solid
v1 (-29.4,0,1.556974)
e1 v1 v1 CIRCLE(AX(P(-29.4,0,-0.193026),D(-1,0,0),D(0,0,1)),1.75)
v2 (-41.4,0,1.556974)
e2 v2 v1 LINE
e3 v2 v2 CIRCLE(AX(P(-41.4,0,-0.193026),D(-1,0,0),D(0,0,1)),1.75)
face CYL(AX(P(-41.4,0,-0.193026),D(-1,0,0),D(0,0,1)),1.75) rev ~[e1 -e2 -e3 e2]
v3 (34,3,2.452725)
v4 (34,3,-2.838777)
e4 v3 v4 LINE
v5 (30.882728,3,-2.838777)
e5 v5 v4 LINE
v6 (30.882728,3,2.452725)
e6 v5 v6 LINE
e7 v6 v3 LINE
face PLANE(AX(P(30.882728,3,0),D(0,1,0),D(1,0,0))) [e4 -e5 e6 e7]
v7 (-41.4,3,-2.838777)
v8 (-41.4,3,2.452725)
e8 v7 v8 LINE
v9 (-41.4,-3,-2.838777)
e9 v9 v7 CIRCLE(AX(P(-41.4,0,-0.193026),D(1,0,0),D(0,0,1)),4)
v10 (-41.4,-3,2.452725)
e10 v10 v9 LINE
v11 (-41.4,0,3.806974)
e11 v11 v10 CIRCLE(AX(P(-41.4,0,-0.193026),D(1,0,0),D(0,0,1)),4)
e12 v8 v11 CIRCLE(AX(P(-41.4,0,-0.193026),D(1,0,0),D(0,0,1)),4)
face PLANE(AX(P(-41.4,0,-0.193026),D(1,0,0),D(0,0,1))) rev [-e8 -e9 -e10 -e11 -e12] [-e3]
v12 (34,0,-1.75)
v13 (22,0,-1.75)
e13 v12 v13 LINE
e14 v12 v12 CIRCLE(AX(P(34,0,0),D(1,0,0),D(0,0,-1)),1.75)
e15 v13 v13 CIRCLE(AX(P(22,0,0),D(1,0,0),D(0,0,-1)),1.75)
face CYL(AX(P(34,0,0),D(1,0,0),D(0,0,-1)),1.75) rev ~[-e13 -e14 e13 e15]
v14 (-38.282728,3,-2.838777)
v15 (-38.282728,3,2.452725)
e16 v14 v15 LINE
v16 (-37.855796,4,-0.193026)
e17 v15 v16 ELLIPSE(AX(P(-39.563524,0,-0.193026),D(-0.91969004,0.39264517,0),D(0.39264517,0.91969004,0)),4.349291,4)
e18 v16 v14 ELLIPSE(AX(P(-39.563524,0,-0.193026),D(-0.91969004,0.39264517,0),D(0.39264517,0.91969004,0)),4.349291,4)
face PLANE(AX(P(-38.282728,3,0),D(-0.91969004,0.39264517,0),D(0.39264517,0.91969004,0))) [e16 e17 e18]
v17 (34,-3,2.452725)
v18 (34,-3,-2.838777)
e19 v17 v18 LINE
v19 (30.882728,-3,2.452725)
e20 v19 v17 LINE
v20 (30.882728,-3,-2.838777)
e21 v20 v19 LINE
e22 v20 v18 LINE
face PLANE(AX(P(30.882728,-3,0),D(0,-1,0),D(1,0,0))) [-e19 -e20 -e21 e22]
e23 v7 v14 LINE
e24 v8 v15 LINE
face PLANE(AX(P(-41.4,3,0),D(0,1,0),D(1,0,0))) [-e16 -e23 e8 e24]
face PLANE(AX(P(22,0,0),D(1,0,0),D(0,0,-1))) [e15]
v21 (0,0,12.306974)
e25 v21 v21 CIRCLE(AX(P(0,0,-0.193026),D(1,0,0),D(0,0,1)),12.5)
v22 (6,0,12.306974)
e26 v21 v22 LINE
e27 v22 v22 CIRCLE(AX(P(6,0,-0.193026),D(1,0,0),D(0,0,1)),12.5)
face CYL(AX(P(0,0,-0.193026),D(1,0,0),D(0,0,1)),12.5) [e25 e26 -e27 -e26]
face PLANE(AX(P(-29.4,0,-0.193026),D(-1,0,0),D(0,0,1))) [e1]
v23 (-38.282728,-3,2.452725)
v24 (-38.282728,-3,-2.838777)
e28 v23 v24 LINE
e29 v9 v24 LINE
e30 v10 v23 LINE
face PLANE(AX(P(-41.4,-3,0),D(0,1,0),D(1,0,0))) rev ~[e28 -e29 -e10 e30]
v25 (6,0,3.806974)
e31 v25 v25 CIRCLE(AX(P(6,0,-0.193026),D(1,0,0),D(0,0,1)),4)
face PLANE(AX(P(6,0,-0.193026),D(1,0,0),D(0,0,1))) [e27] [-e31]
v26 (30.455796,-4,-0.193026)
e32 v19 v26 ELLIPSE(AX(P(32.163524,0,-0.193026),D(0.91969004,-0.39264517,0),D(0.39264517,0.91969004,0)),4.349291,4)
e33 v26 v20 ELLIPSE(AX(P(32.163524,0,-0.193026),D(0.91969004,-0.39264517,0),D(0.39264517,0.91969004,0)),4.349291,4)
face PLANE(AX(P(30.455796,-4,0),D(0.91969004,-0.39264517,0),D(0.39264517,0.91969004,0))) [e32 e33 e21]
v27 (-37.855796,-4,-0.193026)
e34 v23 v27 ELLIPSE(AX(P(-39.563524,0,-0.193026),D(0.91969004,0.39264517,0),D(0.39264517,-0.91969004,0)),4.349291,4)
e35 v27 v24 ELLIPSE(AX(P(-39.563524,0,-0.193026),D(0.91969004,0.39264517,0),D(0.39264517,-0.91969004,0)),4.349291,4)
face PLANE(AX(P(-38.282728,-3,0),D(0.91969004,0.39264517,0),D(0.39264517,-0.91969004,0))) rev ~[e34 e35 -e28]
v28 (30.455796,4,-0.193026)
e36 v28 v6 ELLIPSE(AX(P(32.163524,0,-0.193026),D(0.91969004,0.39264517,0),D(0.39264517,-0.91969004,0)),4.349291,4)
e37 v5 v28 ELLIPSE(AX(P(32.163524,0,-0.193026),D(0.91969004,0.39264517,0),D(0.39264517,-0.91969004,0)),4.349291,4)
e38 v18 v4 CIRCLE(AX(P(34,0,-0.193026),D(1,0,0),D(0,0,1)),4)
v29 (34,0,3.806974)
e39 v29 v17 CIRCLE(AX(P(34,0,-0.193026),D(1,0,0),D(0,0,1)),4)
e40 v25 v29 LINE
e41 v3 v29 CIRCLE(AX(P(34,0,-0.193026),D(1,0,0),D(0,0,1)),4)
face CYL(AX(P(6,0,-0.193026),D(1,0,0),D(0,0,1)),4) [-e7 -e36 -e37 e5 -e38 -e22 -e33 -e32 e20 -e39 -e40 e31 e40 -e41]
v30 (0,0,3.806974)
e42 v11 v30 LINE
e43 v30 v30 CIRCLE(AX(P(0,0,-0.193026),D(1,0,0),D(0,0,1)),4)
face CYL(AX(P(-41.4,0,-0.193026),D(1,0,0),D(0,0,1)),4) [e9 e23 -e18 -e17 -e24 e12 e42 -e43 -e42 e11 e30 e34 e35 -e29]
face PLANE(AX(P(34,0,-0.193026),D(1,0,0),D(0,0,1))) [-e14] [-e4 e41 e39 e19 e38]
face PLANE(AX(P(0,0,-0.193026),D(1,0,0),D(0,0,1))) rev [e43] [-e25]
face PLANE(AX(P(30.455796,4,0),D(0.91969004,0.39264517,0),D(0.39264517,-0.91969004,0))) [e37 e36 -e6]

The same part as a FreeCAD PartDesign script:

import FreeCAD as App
import Part
import Sketcher
from FreeCAD import Vector

doc = App.newDocument("Part")
body = doc.addObject("PartDesign::Body", "Body")

sketch1 = doc.addObject("Sketcher::SketchObject", "Sketch")
body.addObject(sketch1)
sketch1.AttachmentSupport = (doc.XZ_Plane, [""])
sketch1.MapMode = "FlatFace"
sketch1.addGeometry(Part.LineSegment(Vector(-41.4, -4.2, 0), Vector(-41.4, -0.2, 0)), False)
sketch1.addGeometry(Part.LineSegment(Vector(-41.4, -0.2, 0), Vector(34, -0.2, 0)), False)
sketch1.addGeometry(Part.LineSegment(Vector(34, -0.2, 0), Vector(34, -4.2, 0)), False)
sketch1.addGeometry(Part.LineSegment(Vector(34, -4.2, 0), Vector(6, -4.2, 0)), False)
sketch1.addGeometry(Part.LineSegment(Vector(6, -4.2, 0), Vector(6, -12.7, 0)), False)
sketch1.addGeometry(Part.LineSegment(Vector(6, -12.7, 0), Vector(0, -12.7, 0)), False)
sketch1.addGeometry(Part.LineSegment(Vector(0, -12.7, 0), Vector(0, -4.2, 0)), False)
sketch1.addGeometry(Part.LineSegment(Vector(0, -4.2, 0), Vector(-41.4, -4.2, 0)), False)
sketch1.addGeometry(Part.LineSegment(Vector(-41.4, -0.2, 0), Vector(34, -0.2, 0)), True)
sketch1.addConstraint(Sketcher.Constraint("Coincident", 0, 2, 1, 1))
sketch1.addConstraint(Sketcher.Constraint("Coincident", 1, 2, 2, 1))
sketch1.addConstraint(Sketcher.Constraint("Coincident", 2, 2, 3, 1))
sketch1.addConstraint(Sketcher.Constraint("Coincident", 3, 2, 4, 1))
sketch1.addConstraint(Sketcher.Constraint("Coincident", 4, 2, 5, 1))
sketch1.addConstraint(Sketcher.Constraint("Coincident", 5, 2, 6, 1))
sketch1.addConstraint(Sketcher.Constraint("Coincident", 6, 2, 7, 1))
sketch1.addConstraint(Sketcher.Constraint("Coincident", 7, 2, 0, 1))
sketch1.addConstraint(Sketcher.Constraint("Vertical", 0))
sketch1.addConstraint(Sketcher.Constraint("Horizontal", 1))
sketch1.addConstraint(Sketcher.Constraint("Vertical", 2))
sketch1.addConstraint(Sketcher.Constraint("Horizontal", 3))
sketch1.addConstraint(Sketcher.Constraint("Vertical", 4))
sketch1.addConstraint(Sketcher.Constraint("Horizontal", 5))
sketch1.addConstraint(Sketcher.Constraint("Vertical", 6))
sketch1.addConstraint(Sketcher.Constraint("Horizontal", 7))
sketch1.addConstraint(Sketcher.Constraint("Horizontal", 8))
sketch1.addConstraint(Sketcher.Constraint("Coincident", 8, 1, 0, 2))
sketch1.addConstraint(Sketcher.Constraint("PointOnObject", 5, 2, -2))
sketch1.addConstraint(Sketcher.Constraint("Horizontal", 3, 2, 6, 2))
sketch1.addConstraint(Sketcher.Constraint("Vertical", 2, 2, 8, 2))
sketch1.addConstraint(Sketcher.Constraint("DistanceX", 3, 2, 3, 1, 28.0))
sketch1.addConstraint(Sketcher.Constraint("DistanceX", 5, 2, 5, 1, 6.0))
sketch1.addConstraint(Sketcher.Constraint("DistanceY", 0, 1, 0, 2, 4.0))
sketch1.addConstraint(Sketcher.Constraint("DistanceX", 1, 1, 1, 2, 75.4))
sketch1.addConstraint(Sketcher.Constraint("DistanceY", 4, 2, 4, 1, 8.5))
sketch1.addConstraint(Sketcher.Constraint("DistanceY", 0, 2, -1, 1, 0.193026))
revolution = doc.addObject("PartDesign::Revolution", "Revolution")
body.addObject(revolution)
revolution.Profile = sketch1
revolution.ReferenceAxis = (sketch1, ["Axis0"])
revolution.Angle = 360

sketch2 = doc.addObject("Sketcher::SketchObject", "Sketch001")
body.addObject(sketch2)
sketch2.AttachmentSupport = (doc.YZ_Plane, [""])
sketch2.MapMode = "FlatFace"
sketch2.AttachmentOffset = App.Placement(Vector(0, 0, 34), App.Rotation())
sketch2.addGeometry(Part.Circle(Vector(0, 0, 0), Vector(0, 0, 1), 1.8), False)
sketch2.addConstraint(Sketcher.Constraint("Coincident", 0, 3, -1, 1))
sketch2.addConstraint(Sketcher.Constraint("Diameter", 0, 3.5))
pocket1 = doc.addObject("PartDesign::Pocket", "Pocket")
body.addObject(pocket1)
pocket1.Profile = sketch2
pocket1.Length = 12

sketch3 = doc.addObject("Sketcher::SketchObject", "Sketch002")
body.addObject(sketch3)
sketch3.AttachmentSupport = (doc.YZ_Plane, [""])
sketch3.MapMode = "FlatFace"
sketch3.AttachmentOffset = App.Placement(Vector(0, 0, -41.4), App.Rotation())
sketch3.addGeometry(Part.Circle(Vector(0, -0.2, 0), Vector(0, 0, 1), 1.8), False)
sketch3.addConstraint(Sketcher.Constraint("PointOnObject", 0, 3, -2))
sketch3.addConstraint(Sketcher.Constraint("Diameter", 0, 3.5))
sketch3.addConstraint(Sketcher.Constraint("DistanceY", 0, 3, -1, 1, 0.193026))
pocket2 = doc.addObject("PartDesign::Pocket", "Pocket001")
body.addObject(pocket2)
pocket2.Profile = sketch3
pocket2.Length = 12
pocket2.Reversed = True

sketch4 = doc.addObject("Sketcher::SketchObject", "Sketch003")
body.addObject(sketch4)
sketch4.AttachmentSupport = (doc.XY_Plane, [""])
sketch4.MapMode = "FlatFace"
sketch4.addGeometry(Part.LineSegment(Vector(-41.4, 4, 0), Vector(-41.4, 3, 0)), False)
sketch4.addGeometry(Part.LineSegment(Vector(-41.4, 3, 0), Vector(-38.3, 3, 0)), False)
sketch4.addGeometry(Part.LineSegment(Vector(-38.3, 3, 0), Vector(-37.9, 4, 0)), False)
sketch4.addGeometry(Part.LineSegment(Vector(-37.9, 4, 0), Vector(-41.4, 4, 0)), False)
sketch4.addGeometry(Part.LineSegment(Vector(34, 4, 0), Vector(30.5, 4, 0)), False)
sketch4.addGeometry(Part.LineSegment(Vector(30.5, 4, 0), Vector(30.9, 3, 0)), False)
sketch4.addGeometry(Part.LineSegment(Vector(30.9, 3, 0), Vector(34, 3, 0)), False)
sketch4.addGeometry(Part.LineSegment(Vector(34, 3, 0), Vector(34, 4, 0)), False)
sketch4.addGeometry(Part.LineSegment(Vector(-41.4, -3, 0), Vector(-41.4, -4, 0)), False)
sketch4.addGeometry(Part.LineSegment(Vector(-41.4, -4, 0), Vector(-37.9, -4, 0)), False)
sketch4.addGeometry(Part.LineSegment(Vector(-37.9, -4, 0), Vector(-38.3, -3, 0)), False)
sketch4.addGeometry(Part.LineSegment(Vector(-38.3, -3, 0), Vector(-41.4, -3, 0)), False)
sketch4.addGeometry(Part.LineSegment(Vector(34, -3, 0), Vector(30.9, -3, 0)), False)
sketch4.addGeometry(Part.LineSegment(Vector(30.9, -3, 0), Vector(30.5, -4, 0)), False)
sketch4.addGeometry(Part.LineSegment(Vector(30.5, -4, 0), Vector(34, -4, 0)), False)
sketch4.addGeometry(Part.LineSegment(Vector(34, -4, 0), Vector(34, -3, 0)), False)
sketch4.addConstraint(Sketcher.Constraint("Coincident", 0, 2, 1, 1))
sketch4.addConstraint(Sketcher.Constraint("Coincident", 1, 2, 2, 1))
sketch4.addConstraint(Sketcher.Constraint("Coincident", 2, 2, 3, 1))
sketch4.addConstraint(Sketcher.Constraint("Coincident", 3, 2, 0, 1))
sketch4.addConstraint(Sketcher.Constraint("Coincident", 4, 2, 5, 1))
sketch4.addConstraint(Sketcher.Constraint("Coincident", 5, 2, 6, 1))
sketch4.addConstraint(Sketcher.Constraint("Coincident", 6, 2, 7, 1))
sketch4.addConstraint(Sketcher.Constraint("Coincident", 7, 2, 4, 1))
sketch4.addConstraint(Sketcher.Constraint("Coincident", 8, 2, 9, 1))
sketch4.addConstraint(Sketcher.Constraint("Coincident", 9, 2, 10, 1))
sketch4.addConstraint(Sketcher.Constraint("Coincident", 10, 2, 11, 1))
sketch4.addConstraint(Sketcher.Constraint("Coincident", 11, 2, 8, 1))
sketch4.addConstraint(Sketcher.Constraint("Coincident", 12, 2, 13, 1))
sketch4.addConstraint(Sketcher.Constraint("Coincident", 13, 2, 14, 1))
sketch4.addConstraint(Sketcher.Constraint("Coincident", 14, 2, 15, 1))
sketch4.addConstraint(Sketcher.Constraint("Coincident", 15, 2, 12, 1))
sketch4.addConstraint(Sketcher.Constraint("Vertical", 0))
sketch4.addConstraint(Sketcher.Constraint("Horizontal", 1))
sketch4.addConstraint(Sketcher.Constraint("Horizontal", 3))
sketch4.addConstraint(Sketcher.Constraint("Horizontal", 4))
sketch4.addConstraint(Sketcher.Constraint("Horizontal", 6))
sketch4.addConstraint(Sketcher.Constraint("Vertical", 7))
sketch4.addConstraint(Sketcher.Constraint("Vertical", 8))
sketch4.addConstraint(Sketcher.Constraint("Horizontal", 9))
sketch4.addConstraint(Sketcher.Constraint("Horizontal", 11))
sketch4.addConstraint(Sketcher.Constraint("Horizontal", 12))
sketch4.addConstraint(Sketcher.Constraint("Horizontal", 14))
sketch4.addConstraint(Sketcher.Constraint("Vertical", 15))
sketch4.addConstraint(Sketcher.Constraint("Symmetric", 3, 2, 8, 2, -1))
sketch4.addConstraint(Sketcher.Constraint("Symmetric", 1, 2, 10, 2, -1))
sketch4.addConstraint(Sketcher.Constraint("Symmetric", 5, 2, 12, 2, -1))
sketch4.addConstraint(Sketcher.Constraint("Symmetric", 4, 2, 13, 2, -1))
sketch4.addConstraint(Sketcher.Constraint("Parallel", 5, 10))
sketch4.addConstraint(Sketcher.Constraint("Parallel", 2, 13))
sketch4.addConstraint(Sketcher.Constraint("Horizontal", 3, 2, 4, 2))
sketch4.addConstraint(Sketcher.Constraint("Horizontal", 1, 2, 5, 2))
sketch4.addConstraint(Sketcher.Constraint("Vertical", 7, 2, 14, 2))
sketch4.addConstraint(Sketcher.Constraint("Equal", 3, 4))
sketch4.addConstraint(Sketcher.Constraint("DistanceY", 0, 2, 0, 1, 1.0))
sketch4.addConstraint(Sketcher.Constraint("DistanceY", -1, 1, 0, 2, 3.0))
sketch4.addConstraint(Sketcher.Constraint("DistanceX", -1, 1, 6, 2, 34.0))
sketch4.addConstraint(Sketcher.Constraint("DistanceX", 0, 2, -1, 1, 41.4))
sketch4.addConstraint(Sketcher.Constraint("DistanceX", 1, 1, 1, 2, 3.117272))
sketch4.addConstraint(Sketcher.Constraint("DistanceX", 3, 2, 3, 1, 3.544204))
pocket3 = doc.addObject("PartDesign::Pocket", "Pocket002")
body.addObject(pocket3)
pocket3.Profile = sketch4
pocket3.Length = 12
pocket3.Midplane = True

doc.recompute()
